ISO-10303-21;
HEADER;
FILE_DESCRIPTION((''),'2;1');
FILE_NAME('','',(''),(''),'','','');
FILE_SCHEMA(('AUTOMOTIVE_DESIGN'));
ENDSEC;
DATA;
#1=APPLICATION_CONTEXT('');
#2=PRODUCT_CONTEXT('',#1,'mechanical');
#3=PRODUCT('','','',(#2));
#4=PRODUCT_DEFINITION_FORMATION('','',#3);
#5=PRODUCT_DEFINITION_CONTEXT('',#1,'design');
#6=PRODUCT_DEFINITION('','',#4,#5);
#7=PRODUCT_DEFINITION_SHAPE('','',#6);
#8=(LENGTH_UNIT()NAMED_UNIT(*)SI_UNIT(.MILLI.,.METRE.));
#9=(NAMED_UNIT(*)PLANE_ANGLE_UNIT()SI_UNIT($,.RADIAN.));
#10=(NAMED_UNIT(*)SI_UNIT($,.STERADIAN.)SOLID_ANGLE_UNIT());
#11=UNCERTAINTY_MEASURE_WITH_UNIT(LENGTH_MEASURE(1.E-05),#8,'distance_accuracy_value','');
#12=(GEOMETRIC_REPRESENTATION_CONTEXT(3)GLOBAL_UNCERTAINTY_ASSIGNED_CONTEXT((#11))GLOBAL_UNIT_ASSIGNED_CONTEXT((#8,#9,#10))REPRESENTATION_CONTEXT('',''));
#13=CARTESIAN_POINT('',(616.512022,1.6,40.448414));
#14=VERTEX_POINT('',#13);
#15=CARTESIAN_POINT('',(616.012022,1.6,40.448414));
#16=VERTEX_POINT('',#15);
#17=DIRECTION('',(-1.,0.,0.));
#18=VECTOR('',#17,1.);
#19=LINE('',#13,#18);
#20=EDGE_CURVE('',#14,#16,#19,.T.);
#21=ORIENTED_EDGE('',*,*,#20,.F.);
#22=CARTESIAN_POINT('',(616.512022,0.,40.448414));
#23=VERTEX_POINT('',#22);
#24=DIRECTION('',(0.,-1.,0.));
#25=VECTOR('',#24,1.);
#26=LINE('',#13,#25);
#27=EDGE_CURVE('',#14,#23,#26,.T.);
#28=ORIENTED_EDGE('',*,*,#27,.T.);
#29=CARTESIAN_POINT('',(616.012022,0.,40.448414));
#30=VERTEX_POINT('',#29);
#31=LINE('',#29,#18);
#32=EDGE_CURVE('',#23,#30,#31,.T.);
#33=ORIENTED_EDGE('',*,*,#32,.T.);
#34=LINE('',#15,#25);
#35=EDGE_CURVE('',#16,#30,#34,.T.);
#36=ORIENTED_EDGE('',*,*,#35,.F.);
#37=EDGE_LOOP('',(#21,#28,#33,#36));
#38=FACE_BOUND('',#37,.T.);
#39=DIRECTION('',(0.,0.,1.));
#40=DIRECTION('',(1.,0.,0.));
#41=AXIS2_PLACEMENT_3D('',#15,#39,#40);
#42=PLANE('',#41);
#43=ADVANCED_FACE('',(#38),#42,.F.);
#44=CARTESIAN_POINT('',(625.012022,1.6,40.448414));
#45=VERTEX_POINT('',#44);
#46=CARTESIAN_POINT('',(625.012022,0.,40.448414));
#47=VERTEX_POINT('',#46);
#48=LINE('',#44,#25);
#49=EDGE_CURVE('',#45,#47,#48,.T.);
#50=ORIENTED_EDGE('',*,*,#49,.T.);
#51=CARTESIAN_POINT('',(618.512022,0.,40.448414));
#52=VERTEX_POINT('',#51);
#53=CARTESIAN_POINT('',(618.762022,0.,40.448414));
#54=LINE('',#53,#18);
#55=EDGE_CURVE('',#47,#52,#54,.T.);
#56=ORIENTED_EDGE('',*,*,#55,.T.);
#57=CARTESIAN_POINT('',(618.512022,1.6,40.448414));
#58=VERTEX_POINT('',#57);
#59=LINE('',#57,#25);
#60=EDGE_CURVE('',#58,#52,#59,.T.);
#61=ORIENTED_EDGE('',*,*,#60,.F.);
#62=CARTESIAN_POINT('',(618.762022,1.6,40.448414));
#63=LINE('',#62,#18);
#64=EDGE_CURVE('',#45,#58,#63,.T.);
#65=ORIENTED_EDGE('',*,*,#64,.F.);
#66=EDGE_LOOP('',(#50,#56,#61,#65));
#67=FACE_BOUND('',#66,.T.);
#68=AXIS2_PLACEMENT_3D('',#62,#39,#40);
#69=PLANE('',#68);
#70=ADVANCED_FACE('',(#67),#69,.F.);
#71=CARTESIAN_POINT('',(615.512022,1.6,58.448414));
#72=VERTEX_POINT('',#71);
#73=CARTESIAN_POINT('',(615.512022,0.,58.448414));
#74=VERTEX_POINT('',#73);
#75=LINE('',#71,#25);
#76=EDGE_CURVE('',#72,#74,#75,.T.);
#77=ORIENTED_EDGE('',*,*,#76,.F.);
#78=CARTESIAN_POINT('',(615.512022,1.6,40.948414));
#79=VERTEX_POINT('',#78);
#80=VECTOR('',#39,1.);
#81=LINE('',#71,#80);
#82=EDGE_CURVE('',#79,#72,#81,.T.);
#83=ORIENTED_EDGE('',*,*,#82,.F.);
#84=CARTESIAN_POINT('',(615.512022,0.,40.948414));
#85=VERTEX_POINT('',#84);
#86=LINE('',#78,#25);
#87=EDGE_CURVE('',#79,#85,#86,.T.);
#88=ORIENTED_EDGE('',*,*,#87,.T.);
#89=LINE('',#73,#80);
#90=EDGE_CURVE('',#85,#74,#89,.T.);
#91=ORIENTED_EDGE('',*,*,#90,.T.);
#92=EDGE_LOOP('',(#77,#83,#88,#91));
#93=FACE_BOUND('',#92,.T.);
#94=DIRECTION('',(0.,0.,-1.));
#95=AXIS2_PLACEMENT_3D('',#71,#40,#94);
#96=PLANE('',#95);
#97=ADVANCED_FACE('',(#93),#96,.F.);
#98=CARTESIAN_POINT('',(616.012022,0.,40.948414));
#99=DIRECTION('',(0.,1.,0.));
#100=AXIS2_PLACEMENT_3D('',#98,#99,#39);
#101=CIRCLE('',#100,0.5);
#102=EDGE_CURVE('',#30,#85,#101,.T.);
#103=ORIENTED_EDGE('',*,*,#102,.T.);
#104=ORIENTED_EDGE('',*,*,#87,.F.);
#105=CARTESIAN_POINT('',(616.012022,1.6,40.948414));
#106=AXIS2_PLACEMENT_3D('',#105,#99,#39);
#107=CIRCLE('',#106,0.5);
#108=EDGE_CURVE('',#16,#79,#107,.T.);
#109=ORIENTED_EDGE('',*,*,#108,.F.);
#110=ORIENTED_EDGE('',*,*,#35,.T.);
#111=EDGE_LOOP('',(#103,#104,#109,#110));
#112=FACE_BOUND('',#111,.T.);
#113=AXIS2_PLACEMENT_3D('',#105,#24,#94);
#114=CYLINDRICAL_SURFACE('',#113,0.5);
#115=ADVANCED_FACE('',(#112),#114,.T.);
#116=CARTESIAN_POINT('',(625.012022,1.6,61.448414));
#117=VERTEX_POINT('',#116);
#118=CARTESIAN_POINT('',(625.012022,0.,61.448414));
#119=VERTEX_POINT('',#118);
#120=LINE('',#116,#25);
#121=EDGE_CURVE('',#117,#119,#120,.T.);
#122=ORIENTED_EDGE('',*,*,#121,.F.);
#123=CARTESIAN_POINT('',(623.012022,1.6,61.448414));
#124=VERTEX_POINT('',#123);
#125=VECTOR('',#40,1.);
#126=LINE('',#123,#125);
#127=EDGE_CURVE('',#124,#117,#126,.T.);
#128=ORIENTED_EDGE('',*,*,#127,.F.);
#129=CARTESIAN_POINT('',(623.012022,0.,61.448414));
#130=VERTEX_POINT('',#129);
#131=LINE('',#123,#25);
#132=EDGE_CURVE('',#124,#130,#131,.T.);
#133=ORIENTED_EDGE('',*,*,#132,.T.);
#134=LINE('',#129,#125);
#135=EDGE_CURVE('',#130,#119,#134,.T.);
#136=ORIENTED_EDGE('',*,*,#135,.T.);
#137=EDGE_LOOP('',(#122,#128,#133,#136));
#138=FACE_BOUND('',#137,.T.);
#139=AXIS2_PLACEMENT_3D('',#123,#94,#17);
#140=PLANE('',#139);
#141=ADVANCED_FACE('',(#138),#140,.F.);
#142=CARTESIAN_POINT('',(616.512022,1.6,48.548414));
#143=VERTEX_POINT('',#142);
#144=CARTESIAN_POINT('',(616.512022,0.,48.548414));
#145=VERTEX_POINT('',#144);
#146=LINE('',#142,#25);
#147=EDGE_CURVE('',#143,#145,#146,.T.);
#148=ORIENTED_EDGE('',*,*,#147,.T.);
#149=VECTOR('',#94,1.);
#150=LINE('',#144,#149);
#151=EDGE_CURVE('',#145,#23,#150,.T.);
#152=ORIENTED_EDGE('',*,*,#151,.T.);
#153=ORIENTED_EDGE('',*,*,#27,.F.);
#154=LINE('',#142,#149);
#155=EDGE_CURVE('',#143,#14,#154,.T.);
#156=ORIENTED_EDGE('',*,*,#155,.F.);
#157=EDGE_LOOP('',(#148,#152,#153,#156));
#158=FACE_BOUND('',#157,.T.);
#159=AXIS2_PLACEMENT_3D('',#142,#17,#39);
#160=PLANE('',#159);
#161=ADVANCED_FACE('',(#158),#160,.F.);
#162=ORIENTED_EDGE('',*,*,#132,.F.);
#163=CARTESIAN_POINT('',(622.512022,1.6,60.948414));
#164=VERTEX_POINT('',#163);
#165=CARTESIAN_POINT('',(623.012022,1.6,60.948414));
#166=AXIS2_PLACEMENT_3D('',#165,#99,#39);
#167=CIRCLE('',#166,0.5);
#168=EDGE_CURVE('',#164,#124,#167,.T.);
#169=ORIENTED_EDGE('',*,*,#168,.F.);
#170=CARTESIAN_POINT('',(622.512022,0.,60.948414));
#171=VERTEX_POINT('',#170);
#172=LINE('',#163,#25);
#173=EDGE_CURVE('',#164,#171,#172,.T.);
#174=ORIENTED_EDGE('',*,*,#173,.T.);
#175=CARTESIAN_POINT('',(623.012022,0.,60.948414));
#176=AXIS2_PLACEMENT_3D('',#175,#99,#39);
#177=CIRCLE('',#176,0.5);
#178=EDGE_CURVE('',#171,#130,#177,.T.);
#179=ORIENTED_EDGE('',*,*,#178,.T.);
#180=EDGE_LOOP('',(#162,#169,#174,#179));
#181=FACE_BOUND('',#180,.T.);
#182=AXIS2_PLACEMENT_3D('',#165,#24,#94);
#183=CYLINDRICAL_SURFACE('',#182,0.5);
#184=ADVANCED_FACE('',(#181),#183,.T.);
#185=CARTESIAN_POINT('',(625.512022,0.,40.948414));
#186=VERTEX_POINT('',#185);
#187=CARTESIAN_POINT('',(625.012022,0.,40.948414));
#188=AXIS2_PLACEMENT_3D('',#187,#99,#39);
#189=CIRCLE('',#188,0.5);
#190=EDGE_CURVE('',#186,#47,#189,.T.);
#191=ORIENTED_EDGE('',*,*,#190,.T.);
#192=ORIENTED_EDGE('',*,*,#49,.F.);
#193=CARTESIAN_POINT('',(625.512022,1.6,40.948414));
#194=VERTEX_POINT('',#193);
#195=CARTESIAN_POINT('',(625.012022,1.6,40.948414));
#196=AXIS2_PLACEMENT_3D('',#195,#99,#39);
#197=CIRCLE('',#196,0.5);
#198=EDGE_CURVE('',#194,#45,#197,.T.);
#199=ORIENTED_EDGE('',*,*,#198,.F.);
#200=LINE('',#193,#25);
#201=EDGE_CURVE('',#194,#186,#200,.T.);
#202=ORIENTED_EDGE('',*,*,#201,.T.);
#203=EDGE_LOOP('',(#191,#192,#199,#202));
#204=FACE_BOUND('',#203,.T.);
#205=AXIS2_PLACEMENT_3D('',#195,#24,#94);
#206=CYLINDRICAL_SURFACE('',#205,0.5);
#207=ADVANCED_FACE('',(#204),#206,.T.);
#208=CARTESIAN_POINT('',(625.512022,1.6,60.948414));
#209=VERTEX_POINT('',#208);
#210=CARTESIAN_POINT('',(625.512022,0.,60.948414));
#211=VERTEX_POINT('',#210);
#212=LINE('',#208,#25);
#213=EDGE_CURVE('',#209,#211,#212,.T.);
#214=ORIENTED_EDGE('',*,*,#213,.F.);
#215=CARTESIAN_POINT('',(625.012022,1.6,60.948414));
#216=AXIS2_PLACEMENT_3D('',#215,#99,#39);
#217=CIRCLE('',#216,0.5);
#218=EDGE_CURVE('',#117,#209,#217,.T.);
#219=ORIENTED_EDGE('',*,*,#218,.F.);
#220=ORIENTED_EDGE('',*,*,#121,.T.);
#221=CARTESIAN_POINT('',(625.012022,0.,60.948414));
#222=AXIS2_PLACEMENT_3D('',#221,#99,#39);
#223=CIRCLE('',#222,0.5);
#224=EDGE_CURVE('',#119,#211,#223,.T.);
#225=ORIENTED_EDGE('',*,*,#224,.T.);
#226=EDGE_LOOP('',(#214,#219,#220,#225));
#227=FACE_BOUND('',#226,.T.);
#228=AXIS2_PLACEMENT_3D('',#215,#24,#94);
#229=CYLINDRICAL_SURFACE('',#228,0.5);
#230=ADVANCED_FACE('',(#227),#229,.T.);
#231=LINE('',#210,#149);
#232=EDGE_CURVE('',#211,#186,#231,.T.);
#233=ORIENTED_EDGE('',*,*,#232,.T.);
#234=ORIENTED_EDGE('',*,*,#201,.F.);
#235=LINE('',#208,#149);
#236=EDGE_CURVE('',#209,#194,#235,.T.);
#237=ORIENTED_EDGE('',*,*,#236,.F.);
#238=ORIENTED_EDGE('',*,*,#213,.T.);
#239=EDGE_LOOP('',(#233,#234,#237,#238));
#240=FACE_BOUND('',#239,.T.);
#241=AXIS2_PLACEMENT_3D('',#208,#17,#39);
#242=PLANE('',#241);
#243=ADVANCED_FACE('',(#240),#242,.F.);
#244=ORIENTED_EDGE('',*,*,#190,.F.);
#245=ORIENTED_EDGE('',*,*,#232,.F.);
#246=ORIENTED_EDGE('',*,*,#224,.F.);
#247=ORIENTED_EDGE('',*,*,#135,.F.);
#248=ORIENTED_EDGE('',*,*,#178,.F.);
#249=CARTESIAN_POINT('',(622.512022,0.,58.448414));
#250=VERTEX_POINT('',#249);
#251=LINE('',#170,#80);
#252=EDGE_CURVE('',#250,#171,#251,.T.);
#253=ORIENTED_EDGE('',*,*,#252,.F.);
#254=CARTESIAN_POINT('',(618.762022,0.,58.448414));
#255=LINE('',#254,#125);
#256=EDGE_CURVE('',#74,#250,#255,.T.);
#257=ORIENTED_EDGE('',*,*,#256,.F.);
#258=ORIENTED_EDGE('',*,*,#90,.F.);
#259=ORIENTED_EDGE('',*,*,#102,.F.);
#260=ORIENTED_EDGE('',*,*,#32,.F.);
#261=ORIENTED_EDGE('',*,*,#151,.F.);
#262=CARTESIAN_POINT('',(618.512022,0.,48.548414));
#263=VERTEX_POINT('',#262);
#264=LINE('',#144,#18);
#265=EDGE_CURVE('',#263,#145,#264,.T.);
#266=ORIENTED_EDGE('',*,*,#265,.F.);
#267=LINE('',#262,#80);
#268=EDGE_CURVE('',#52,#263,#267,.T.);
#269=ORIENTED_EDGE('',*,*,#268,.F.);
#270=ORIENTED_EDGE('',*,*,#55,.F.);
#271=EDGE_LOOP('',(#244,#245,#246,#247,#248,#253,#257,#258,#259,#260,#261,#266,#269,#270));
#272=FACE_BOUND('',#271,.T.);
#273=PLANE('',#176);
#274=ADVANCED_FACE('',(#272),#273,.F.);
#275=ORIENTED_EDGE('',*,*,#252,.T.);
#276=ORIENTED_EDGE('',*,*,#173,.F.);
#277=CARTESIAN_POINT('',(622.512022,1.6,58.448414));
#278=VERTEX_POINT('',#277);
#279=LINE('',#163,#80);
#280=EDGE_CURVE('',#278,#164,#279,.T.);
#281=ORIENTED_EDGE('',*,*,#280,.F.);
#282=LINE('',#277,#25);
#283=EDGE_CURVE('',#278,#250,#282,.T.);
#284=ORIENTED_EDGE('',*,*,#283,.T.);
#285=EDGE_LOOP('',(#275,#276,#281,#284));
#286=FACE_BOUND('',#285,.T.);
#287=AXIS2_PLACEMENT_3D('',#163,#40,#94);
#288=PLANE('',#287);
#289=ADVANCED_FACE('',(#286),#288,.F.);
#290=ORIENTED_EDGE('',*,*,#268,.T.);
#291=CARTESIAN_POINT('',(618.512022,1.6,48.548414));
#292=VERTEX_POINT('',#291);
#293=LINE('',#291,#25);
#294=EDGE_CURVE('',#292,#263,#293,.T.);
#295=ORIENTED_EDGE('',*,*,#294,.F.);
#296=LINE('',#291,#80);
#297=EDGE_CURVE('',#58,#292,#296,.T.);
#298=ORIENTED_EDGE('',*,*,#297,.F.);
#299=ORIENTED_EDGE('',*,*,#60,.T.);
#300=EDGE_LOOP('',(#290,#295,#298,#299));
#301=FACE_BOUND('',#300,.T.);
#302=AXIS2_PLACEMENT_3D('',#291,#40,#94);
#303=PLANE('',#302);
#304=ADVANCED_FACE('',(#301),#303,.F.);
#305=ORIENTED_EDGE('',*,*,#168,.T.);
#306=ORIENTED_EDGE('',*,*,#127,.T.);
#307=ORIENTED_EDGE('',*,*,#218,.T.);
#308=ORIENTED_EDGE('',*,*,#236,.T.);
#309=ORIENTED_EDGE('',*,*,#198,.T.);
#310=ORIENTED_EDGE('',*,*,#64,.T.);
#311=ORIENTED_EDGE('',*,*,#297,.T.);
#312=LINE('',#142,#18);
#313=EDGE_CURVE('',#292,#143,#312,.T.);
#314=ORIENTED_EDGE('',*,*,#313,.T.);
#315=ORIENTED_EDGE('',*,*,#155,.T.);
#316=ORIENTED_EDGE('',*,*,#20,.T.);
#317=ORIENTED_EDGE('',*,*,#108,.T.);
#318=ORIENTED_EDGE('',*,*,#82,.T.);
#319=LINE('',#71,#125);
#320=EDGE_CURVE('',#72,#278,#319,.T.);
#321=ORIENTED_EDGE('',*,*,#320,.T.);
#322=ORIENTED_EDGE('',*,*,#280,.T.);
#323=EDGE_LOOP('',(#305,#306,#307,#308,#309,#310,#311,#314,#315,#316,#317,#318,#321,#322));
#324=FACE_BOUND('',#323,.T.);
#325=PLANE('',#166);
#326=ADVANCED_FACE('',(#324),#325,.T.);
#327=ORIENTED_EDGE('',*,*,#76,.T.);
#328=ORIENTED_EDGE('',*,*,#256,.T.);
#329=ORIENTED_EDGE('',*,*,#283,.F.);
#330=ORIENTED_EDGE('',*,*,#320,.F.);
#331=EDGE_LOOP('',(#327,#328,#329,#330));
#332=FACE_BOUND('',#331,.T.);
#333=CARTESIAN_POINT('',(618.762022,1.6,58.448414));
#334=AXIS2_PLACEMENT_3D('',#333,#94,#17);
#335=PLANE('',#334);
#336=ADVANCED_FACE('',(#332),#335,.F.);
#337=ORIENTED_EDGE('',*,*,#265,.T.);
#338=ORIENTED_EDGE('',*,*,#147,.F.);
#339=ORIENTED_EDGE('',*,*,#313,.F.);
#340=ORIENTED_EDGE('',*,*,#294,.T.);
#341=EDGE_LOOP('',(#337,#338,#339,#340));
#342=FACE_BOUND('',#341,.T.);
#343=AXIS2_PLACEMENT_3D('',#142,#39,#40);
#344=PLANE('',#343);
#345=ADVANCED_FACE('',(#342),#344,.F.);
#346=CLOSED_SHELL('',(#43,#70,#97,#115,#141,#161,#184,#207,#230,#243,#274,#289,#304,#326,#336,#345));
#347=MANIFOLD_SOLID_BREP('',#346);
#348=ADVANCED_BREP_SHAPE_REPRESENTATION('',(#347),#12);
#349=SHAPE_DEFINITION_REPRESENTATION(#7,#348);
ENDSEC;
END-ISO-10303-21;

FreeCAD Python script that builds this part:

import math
import FreeCAD as App
import Part
import Sketcher

V = App.Vector

doc = App.newDocument("Part")
body = doc.addObject("PartDesign::Body", "Body")

sketch1 = body.newObject("Sketcher::SketchObject", "Sketch")
sketch1.AttachmentSupport = (doc.getObject("XZ_Plane"), [""])
sketch1.MapMode = "FlatFace"
sketch1.addGeometry(Part.LineSegment(V(623.012022, 61.448414, 0), V(625.012022, 61.448414, 0)), False)
sketch1.addGeometry(Part.ArcOfCircle(Part.Circle(V(625.012022, 60.948414, 0), V(0, 0, 1), 0.5), math.radians(0), math.radians(90)), False)
sketch1.addGeometry(Part.LineSegment(V(625.512022, 60.948414, 0), V(625.512022, 40.948414, 0)), False)
sketch1.addGeometry(Part.ArcOfCircle(Part.Circle(V(625.012022, 40.948414, 0), V(0, 0, 1), 0.5), math.radians(-90), math.radians(0)), False)
sketch1.addGeometry(Part.LineSegment(V(625.012022, 40.448414, 0), V(618.512022, 40.448414, 0)), False)
sketch1.addGeometry(Part.LineSegment(V(618.512022, 40.448414, 0), V(618.512022, 48.548414, 0)), False)
sketch1.addGeometry(Part.LineSegment(V(618.512022, 48.548414, 0), V(616.512022, 48.548414, 0)), False)
sketch1.addGeometry(Part.LineSegment(V(616.512022, 48.548414, 0), V(616.512022, 40.448414, 0)), False)
sketch1.addGeometry(Part.LineSegment(V(616.512022, 40.448414, 0), V(616.012022, 40.448414, 0)), False)
sketch1.addGeometry(Part.ArcOfCircle(Part.Circle(V(616.012022, 40.948414, 0), V(0, 0, 1), 0.5), math.radians(180), math.radians(270)), False)
sketch1.addGeometry(Part.LineSegment(V(615.512022, 40.948414, 0), V(615.512022, 58.448414, 0)), False)
sketch1.addGeometry(Part.LineSegment(V(615.512022, 58.448414, 0), V(622.512022, 58.448414, 0)), False)
sketch1.addGeometry(Part.LineSegment(V(622.512022, 58.448414, 0), V(622.512022, 60.948414, 0)), False)
sketch1.addGeometry(Part.ArcOfCircle(Part.Circle(V(623.012022, 60.948414, 0), V(0, 0, 1), 0.5), math.radians(90), math.radians(180)), False)
sketch1.addConstraint(Sketcher.Constraint("Tangent", 0, 2, 1, 2))
sketch1.addConstraint(Sketcher.Constraint("Tangent", 1, 1, 2, 1))
sketch1.addConstraint(Sketcher.Constraint("Tangent", 2, 2, 3, 2))
sketch1.addConstraint(Sketcher.Constraint("Tangent", 3, 1, 4, 1))
sketch1.addConstraint(Sketcher.Constraint("Coincident", 4, 2, 5, 1))
sketch1.addConstraint(Sketcher.Constraint("Coincident", 5, 2, 6, 1))
sketch1.addConstraint(Sketcher.Constraint("Coincident", 6, 2, 7, 1))
sketch1.addConstraint(Sketcher.Constraint("Coincident", 7, 2, 8, 1))
sketch1.addConstraint(Sketcher.Constraint("Tangent", 8, 2, 9, 2))
sketch1.addConstraint(Sketcher.Constraint("Tangent", 9, 1, 10, 1))
sketch1.addConstraint(Sketcher.Constraint("Coincident", 10, 2, 11, 1))
sketch1.addConstraint(Sketcher.Constraint("Coincident", 11, 2, 12, 1))
sketch1.addConstraint(Sketcher.Constraint("Tangent", 12, 2, 13, 2))
sketch1.addConstraint(Sketcher.Constraint("Tangent", 13, 1, 0, 1))
sketch1.addConstraint(Sketcher.Constraint("Horizontal", 0))
sketch1.addConstraint(Sketcher.Constraint("Vertical", 2))
sketch1.addConstraint(Sketcher.Constraint("Horizontal", 4))
sketch1.addConstraint(Sketcher.Constraint("Vertical", 5))
sketch1.addConstraint(Sketcher.Constraint("Horizontal", 6))
sketch1.addConstraint(Sketcher.Constraint("Vertical", 7))
sketch1.addConstraint(Sketcher.Constraint("Horizontal", 8))
sketch1.addConstraint(Sketcher.Constraint("Vertical", 10))
sketch1.addConstraint(Sketcher.Constraint("Horizontal", 11))
sketch1.addConstraint(Sketcher.Constraint("Vertical", 12))
sketch1.addConstraint(Sketcher.Constraint("Equal", 1, 3))
sketch1.addConstraint(Sketcher.Constraint("Equal", 3, 9))
sketch1.addConstraint(Sketcher.Constraint("Equal", 9, 13))
sketch1.addConstraint(Sketcher.Constraint("Horizontal", 3, 3, 9, 3))
sketch1.addConstraint(Sketcher.Constraint("Equal", 0, 6))
sketch1.addConstraint(Sketcher.Constraint("Radius", 1, 0.5))
sketch1.addConstraint(Sketcher.Constraint("DistanceX", 0, 1, 0, 2, 2.0))
sketch1.addConstraint(Sketcher.Constraint("DistanceX", 11, 1, 11, 2, 7.0))
sketch1.addConstraint(Sketcher.Constraint("DistanceY", 2, 2, 2, 1, 20.0))
sketch1.addConstraint(Sketcher.Constraint("DistanceX", 4, 2, 4, 1, 6.5))
sketch1.addConstraint(Sketcher.Constraint("DistanceY", 5, 1, 5, 2, 8.1))
sketch1.addConstraint(Sketcher.Constraint("DistanceY", 10, 1, 10, 2, 17.5))
sketch1.addConstraint(Sketcher.Constraint("DistanceX", -1, 1, 1, 3, 625.012022))
sketch1.addConstraint(Sketcher.Constraint("DistanceY", -1, 1, 1, 3, 60.948414))
pad1 = body.newObject("PartDesign::Pad", "Pad")
pad1.Profile = sketch1
pad1.Length = 1.6
pad1.Reversed = True

doc.recompute()
